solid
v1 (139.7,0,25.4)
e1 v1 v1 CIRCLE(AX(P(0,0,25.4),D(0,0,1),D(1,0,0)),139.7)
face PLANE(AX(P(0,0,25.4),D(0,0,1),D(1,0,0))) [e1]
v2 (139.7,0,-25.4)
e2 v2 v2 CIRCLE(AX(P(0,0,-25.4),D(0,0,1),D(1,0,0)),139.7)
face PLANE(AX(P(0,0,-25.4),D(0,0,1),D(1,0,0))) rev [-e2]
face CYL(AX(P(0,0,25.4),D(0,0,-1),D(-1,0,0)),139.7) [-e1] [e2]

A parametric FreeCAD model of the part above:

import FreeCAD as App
import Part
import Sketcher
from FreeCAD import Vector
Q = App.Units.Quantity

doc = App.newDocument("Part")
body = doc.addObject("PartDesign::Body", "Body")

sketch1 = body.newObject("Sketcher::SketchObject", "Sketch")
sketch1.AttachmentSupport = (doc.getObject("XY_Plane"), [""])
sketch1.MapMode = "FlatFace"
sketch1.addGeometry(Part.Circle(Vector(0, 0, 0), Vector(0, 0, 1), 140), False)
sketch1.addConstraint([
    Sketcher.Constraint("Coincident", 0, 3, -1, 1),
    Sketcher.Constraint("Diameter", 0, Q("11 in")),
])
pad1 = body.newObject("PartDesign::Pad", "Pad")
pad1.Profile = sketch1
pad1.Length = Q("2 in")
pad1.Midplane = True

doc.recompute()
